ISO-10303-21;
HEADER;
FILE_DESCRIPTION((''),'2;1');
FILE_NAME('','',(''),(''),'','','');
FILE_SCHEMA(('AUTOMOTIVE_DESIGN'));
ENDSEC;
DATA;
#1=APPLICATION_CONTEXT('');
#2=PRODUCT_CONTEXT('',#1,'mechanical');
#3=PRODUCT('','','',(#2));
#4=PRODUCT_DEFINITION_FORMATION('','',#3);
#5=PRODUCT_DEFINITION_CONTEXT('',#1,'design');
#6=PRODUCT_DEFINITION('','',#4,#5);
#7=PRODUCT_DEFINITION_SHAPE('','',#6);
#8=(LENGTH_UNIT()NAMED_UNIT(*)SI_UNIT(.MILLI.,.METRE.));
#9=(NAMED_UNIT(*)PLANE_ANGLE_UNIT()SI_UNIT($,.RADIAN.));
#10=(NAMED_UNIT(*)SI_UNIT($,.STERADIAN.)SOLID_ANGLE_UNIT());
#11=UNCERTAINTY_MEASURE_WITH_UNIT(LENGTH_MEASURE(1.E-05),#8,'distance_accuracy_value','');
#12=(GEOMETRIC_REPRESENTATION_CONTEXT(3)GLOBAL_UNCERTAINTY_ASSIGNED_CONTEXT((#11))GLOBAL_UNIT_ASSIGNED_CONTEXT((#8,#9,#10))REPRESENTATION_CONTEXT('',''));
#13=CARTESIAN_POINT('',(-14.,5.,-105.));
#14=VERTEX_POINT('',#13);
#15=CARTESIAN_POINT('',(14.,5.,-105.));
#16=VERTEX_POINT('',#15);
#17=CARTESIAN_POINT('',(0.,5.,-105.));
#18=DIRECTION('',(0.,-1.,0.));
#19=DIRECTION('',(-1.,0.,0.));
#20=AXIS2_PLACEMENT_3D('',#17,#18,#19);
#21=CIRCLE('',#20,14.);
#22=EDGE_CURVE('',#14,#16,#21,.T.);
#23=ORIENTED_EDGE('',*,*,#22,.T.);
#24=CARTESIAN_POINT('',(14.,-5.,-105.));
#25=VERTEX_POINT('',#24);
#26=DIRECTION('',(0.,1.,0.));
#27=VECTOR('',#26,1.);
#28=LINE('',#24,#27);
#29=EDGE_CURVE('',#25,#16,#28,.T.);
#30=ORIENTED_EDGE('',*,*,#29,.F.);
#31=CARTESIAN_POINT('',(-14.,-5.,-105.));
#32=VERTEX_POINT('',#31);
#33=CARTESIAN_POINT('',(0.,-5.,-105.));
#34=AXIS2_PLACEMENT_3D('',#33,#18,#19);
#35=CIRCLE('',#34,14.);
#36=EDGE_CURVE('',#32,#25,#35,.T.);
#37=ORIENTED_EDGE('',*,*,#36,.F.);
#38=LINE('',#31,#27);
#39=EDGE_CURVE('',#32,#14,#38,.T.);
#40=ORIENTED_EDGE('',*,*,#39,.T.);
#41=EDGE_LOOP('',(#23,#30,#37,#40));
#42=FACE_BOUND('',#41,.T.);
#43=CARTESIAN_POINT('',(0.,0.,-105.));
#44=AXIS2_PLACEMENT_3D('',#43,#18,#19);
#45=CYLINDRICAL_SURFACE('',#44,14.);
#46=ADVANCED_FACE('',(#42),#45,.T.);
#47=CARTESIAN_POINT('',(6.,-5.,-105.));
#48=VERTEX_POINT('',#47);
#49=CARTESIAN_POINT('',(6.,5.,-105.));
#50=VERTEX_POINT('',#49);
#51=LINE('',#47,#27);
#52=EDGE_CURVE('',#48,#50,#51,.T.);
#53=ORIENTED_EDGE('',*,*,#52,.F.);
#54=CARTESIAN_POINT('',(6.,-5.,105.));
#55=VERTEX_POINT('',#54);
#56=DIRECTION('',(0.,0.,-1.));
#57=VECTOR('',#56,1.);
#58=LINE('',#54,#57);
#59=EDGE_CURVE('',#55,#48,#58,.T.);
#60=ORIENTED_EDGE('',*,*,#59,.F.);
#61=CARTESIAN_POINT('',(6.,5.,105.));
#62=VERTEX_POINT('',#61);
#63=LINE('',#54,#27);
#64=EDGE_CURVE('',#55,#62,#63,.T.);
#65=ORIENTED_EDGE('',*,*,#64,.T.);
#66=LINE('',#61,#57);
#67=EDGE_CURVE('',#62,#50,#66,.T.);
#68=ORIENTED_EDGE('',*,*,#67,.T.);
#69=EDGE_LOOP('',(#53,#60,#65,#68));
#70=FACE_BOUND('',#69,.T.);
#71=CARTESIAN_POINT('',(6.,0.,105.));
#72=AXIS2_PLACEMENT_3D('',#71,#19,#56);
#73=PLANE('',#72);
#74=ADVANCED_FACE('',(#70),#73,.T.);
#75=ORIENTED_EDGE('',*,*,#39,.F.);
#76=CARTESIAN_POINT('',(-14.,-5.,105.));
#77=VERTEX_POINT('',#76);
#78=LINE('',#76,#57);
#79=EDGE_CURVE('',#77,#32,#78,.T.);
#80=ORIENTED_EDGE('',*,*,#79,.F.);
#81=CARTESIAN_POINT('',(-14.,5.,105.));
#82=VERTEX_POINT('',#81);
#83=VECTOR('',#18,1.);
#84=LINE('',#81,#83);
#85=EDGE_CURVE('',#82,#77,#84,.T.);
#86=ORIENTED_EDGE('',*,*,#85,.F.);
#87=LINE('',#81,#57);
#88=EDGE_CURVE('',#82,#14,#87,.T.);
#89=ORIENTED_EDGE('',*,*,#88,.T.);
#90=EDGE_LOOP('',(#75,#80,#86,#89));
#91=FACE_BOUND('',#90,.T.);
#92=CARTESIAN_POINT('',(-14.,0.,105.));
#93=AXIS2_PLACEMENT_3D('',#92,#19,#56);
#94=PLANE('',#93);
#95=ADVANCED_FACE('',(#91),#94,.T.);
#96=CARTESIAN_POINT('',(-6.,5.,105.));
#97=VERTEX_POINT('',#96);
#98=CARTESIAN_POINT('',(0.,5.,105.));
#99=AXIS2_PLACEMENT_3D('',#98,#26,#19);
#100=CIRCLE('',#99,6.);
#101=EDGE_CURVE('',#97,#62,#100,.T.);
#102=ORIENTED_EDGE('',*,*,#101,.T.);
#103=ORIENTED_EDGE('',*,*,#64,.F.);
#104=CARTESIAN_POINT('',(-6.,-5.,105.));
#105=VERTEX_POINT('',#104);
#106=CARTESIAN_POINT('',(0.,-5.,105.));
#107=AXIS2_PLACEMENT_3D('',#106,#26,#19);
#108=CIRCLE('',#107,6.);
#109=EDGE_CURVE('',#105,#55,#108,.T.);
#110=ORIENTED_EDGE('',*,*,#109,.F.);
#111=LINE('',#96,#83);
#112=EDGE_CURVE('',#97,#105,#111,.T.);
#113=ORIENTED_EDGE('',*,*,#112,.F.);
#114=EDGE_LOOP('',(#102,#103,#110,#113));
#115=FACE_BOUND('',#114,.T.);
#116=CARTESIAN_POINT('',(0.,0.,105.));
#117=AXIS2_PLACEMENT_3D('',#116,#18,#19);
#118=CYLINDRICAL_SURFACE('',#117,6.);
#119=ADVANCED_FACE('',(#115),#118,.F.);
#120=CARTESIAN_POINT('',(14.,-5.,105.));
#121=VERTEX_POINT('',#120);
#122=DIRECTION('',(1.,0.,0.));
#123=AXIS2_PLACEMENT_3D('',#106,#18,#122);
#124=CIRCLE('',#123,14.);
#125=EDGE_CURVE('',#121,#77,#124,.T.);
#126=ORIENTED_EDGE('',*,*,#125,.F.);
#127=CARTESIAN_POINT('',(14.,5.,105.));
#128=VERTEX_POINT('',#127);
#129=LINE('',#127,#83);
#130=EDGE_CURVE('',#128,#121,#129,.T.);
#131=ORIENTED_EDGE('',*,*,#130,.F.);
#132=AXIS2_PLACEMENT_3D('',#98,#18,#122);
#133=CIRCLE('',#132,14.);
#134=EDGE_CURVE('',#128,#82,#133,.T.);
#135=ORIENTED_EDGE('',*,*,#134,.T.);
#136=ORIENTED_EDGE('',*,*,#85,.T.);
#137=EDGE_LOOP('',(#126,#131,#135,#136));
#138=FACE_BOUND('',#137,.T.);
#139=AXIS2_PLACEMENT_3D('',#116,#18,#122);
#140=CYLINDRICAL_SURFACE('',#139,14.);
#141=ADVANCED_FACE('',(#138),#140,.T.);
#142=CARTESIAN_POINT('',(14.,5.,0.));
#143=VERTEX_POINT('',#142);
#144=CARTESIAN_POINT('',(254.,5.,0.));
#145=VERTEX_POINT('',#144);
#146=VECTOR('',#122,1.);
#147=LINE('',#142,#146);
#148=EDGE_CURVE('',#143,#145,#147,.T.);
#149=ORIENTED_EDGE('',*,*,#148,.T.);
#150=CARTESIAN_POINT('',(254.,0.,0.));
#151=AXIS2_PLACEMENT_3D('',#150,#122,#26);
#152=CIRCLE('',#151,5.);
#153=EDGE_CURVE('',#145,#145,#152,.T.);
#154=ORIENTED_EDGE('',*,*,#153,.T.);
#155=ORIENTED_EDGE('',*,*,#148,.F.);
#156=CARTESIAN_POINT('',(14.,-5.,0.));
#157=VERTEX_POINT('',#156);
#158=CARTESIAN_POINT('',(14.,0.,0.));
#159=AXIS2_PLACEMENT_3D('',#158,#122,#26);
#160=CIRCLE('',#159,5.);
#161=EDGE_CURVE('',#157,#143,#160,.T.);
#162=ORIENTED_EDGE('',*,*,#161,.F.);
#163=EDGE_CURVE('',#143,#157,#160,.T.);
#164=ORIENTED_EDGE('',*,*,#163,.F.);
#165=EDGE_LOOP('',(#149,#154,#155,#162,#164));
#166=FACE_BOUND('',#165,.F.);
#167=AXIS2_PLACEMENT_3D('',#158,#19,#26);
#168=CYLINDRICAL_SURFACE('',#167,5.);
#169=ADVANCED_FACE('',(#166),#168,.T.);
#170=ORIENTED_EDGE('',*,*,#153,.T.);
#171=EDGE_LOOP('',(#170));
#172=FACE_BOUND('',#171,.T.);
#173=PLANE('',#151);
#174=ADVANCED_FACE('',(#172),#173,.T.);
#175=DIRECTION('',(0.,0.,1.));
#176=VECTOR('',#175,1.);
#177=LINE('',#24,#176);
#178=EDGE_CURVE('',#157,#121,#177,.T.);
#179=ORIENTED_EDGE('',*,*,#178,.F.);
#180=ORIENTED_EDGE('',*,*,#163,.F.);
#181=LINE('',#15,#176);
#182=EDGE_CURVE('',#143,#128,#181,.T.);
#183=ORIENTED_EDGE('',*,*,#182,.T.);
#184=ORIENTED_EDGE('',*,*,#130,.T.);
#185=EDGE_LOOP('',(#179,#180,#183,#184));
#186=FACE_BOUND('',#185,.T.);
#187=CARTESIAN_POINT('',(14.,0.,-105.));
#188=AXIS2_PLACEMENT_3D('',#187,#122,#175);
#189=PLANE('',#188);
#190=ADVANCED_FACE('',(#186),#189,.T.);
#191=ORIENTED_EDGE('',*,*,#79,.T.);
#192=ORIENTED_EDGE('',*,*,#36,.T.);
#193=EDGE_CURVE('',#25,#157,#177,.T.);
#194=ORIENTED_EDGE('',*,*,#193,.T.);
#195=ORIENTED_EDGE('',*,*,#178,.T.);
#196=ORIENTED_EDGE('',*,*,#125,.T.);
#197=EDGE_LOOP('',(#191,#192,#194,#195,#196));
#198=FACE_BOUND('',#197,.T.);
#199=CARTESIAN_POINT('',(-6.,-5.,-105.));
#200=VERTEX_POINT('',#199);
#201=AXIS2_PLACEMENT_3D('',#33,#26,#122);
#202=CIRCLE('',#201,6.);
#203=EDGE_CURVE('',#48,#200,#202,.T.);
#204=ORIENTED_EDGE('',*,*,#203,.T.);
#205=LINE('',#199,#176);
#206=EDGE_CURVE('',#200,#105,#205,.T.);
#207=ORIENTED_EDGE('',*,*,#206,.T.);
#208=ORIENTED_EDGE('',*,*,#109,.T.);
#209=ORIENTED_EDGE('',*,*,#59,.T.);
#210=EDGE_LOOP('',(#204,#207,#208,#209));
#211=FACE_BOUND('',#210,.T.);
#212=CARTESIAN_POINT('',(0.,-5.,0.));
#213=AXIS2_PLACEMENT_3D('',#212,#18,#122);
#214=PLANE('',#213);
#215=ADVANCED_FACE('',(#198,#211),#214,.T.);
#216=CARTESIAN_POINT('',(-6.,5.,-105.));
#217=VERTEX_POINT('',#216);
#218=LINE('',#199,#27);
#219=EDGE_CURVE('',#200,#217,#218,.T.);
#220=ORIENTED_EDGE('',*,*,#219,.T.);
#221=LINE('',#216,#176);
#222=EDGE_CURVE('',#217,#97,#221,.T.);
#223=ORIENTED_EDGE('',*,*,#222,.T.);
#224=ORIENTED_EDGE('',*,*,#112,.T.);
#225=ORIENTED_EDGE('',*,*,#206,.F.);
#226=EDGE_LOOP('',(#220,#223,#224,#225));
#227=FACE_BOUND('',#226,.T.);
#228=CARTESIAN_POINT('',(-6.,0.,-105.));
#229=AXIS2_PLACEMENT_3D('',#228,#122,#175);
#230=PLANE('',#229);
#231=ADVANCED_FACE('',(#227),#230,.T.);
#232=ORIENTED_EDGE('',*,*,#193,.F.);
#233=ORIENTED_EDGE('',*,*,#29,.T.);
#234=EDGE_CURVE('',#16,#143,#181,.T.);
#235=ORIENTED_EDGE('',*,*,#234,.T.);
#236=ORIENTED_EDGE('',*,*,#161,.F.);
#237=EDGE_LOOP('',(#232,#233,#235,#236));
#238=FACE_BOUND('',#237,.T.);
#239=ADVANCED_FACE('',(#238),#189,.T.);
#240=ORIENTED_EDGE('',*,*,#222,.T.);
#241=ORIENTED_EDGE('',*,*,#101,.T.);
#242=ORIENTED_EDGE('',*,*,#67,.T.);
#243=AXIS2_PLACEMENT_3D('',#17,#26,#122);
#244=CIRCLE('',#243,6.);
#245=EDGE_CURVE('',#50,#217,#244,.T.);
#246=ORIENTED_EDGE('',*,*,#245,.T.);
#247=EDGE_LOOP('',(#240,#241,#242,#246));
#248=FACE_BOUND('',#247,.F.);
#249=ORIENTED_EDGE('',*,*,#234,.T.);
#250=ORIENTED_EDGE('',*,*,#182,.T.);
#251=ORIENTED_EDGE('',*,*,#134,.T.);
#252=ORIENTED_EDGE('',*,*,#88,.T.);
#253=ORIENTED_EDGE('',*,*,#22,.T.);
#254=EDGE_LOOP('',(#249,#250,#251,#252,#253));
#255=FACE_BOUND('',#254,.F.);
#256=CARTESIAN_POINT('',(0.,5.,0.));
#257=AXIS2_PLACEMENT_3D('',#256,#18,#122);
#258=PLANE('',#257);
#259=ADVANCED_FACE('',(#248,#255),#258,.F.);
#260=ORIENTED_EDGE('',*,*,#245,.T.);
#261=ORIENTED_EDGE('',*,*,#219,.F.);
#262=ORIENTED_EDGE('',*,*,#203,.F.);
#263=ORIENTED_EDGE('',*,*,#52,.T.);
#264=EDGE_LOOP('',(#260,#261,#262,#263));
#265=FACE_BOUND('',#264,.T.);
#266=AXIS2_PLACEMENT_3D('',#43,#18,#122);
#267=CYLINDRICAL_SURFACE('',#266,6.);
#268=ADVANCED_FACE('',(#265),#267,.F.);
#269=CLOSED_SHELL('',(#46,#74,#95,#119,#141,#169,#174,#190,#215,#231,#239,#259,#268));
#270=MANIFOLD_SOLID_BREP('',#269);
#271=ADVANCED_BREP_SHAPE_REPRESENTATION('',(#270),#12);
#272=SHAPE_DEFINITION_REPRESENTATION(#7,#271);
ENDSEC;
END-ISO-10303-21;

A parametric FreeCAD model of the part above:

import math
import FreeCAD as App
import Part
import Sketcher
from FreeCAD import Vector
Q = App.Units.Quantity

doc = App.newDocument("Part")
body = doc.addObject("PartDesign::Body", "Body")

# Sketch on XZ plane
sketch1 = body.newObject("Sketcher::SketchObject", "Sketch")
sketch1.AttachmentSupport = (doc.getObject("XZ_Plane"), [""])
sketch1.MapMode = "FlatFace"
sketch1.addGeometry(Part.LineSegment(Vector(14, -105, 0), Vector(14, 105, 0)), False)
sketch1.addGeometry(Part.ArcOfCircle(Part.Circle(Vector(0, 105, 0), Vector(0, 0, 1), 14), math.radians(0), math.radians(180)), False)
sketch1.addGeometry(Part.LineSegment(Vector(-14, 105, 0), Vector(-14, -105, 0)), False)
sketch1.addGeometry(Part.ArcOfCircle(Part.Circle(Vector(0, -105, 0), Vector(0, 0, 1), 14), math.radians(180), math.radians(360)), False)
sketch1.addGeometry(Part.LineSegment(Vector(-6, -105, 0), Vector(-6, 105, 0)), False)
sketch1.addGeometry(Part.ArcOfCircle(Part.Circle(Vector(0, 105, 0), Vector(0, 0, 1), 6), math.radians(0), math.radians(180)), False)
sketch1.addGeometry(Part.LineSegment(Vector(6, 105, 0), Vector(6, -105, 0)), False)
sketch1.addGeometry(Part.ArcOfCircle(Part.Circle(Vector(0, -105, 0), Vector(0, 0, 1), 6), math.radians(180), math.radians(360)), False)
sketch1.addConstraint(Sketcher.Constraint("Tangent", 0, 2, 1, 1))
sketch1.addConstraint(Sketcher.Constraint("Tangent", 1, 2, 2, 1))
sketch1.addConstraint(Sketcher.Constraint("Tangent", 2, 2, 3, 1))
sketch1.addConstraint(Sketcher.Constraint("Tangent", 3, 2, 0, 1))
sketch1.addConstraint(Sketcher.Constraint("Tangent", 4, 2, 5, 2))
sketch1.addConstraint(Sketcher.Constraint("Tangent", 5, 1, 6, 1))
sketch1.addConstraint(Sketcher.Constraint("Tangent", 6, 2, 7, 2))
sketch1.addConstraint(Sketcher.Constraint("Tangent", 7, 1, 4, 1))
sketch1.addConstraint(Sketcher.Constraint("Vertical", 0))
sketch1.addConstraint(Sketcher.Constraint("Vertical", 2))
sketch1.addConstraint(Sketcher.Constraint("Vertical", 4))
sketch1.addConstraint(Sketcher.Constraint("Vertical", 6))
sketch1.addConstraint(Sketcher.Constraint("Coincident", 5, 3, 1, 3))
sketch1.addConstraint(Sketcher.Constraint("Symmetric", 1, 3, 3, 3, -1, 1))
sketch1.addConstraint(Sketcher.Constraint("Horizontal", 7, 3, 2, 2))
sketch1.addConstraint(Sketcher.Constraint("Radius", 1, Q("14 mm")))
sketch1.addConstraint(Sketcher.Constraint("Radius", 5, Q("6 mm")))
sketch1.addConstraint(Sketcher.Constraint("DistanceY", 0, 1, 0, 2, Q("210 mm")))
pad1 = body.newObject("PartDesign::Pad", "Pad")
pad1.Profile = sketch1
pad1.Length = 10
pad1.Midplane = True

# Sketch on YZ plane
sketch2 = body.newObject("Sketcher::SketchObject", "Sketch001")
sketch2.AttachmentSupport = (doc.getObject("YZ_Plane"), [""])
sketch2.MapMode = "FlatFace"
sketch2.AttachmentOffset = App.Placement(Vector(0, 0, 14), App.Rotation())
sketch2.addGeometry(Part.Circle(Vector(0, 0, 0), Vector(0, 0, 1), 5), False)
sketch2.addConstraint(Sketcher.Constraint("Coincident", 0, 3, -1, 1))
sketch2.addConstraint(Sketcher.Constraint("Diameter", 0, Q("10 mm")))
pad2 = body.newObject("PartDesign::Pad", "Pad001")
pad2.Profile = sketch2
pad2.Length = 240

doc.recompute()
